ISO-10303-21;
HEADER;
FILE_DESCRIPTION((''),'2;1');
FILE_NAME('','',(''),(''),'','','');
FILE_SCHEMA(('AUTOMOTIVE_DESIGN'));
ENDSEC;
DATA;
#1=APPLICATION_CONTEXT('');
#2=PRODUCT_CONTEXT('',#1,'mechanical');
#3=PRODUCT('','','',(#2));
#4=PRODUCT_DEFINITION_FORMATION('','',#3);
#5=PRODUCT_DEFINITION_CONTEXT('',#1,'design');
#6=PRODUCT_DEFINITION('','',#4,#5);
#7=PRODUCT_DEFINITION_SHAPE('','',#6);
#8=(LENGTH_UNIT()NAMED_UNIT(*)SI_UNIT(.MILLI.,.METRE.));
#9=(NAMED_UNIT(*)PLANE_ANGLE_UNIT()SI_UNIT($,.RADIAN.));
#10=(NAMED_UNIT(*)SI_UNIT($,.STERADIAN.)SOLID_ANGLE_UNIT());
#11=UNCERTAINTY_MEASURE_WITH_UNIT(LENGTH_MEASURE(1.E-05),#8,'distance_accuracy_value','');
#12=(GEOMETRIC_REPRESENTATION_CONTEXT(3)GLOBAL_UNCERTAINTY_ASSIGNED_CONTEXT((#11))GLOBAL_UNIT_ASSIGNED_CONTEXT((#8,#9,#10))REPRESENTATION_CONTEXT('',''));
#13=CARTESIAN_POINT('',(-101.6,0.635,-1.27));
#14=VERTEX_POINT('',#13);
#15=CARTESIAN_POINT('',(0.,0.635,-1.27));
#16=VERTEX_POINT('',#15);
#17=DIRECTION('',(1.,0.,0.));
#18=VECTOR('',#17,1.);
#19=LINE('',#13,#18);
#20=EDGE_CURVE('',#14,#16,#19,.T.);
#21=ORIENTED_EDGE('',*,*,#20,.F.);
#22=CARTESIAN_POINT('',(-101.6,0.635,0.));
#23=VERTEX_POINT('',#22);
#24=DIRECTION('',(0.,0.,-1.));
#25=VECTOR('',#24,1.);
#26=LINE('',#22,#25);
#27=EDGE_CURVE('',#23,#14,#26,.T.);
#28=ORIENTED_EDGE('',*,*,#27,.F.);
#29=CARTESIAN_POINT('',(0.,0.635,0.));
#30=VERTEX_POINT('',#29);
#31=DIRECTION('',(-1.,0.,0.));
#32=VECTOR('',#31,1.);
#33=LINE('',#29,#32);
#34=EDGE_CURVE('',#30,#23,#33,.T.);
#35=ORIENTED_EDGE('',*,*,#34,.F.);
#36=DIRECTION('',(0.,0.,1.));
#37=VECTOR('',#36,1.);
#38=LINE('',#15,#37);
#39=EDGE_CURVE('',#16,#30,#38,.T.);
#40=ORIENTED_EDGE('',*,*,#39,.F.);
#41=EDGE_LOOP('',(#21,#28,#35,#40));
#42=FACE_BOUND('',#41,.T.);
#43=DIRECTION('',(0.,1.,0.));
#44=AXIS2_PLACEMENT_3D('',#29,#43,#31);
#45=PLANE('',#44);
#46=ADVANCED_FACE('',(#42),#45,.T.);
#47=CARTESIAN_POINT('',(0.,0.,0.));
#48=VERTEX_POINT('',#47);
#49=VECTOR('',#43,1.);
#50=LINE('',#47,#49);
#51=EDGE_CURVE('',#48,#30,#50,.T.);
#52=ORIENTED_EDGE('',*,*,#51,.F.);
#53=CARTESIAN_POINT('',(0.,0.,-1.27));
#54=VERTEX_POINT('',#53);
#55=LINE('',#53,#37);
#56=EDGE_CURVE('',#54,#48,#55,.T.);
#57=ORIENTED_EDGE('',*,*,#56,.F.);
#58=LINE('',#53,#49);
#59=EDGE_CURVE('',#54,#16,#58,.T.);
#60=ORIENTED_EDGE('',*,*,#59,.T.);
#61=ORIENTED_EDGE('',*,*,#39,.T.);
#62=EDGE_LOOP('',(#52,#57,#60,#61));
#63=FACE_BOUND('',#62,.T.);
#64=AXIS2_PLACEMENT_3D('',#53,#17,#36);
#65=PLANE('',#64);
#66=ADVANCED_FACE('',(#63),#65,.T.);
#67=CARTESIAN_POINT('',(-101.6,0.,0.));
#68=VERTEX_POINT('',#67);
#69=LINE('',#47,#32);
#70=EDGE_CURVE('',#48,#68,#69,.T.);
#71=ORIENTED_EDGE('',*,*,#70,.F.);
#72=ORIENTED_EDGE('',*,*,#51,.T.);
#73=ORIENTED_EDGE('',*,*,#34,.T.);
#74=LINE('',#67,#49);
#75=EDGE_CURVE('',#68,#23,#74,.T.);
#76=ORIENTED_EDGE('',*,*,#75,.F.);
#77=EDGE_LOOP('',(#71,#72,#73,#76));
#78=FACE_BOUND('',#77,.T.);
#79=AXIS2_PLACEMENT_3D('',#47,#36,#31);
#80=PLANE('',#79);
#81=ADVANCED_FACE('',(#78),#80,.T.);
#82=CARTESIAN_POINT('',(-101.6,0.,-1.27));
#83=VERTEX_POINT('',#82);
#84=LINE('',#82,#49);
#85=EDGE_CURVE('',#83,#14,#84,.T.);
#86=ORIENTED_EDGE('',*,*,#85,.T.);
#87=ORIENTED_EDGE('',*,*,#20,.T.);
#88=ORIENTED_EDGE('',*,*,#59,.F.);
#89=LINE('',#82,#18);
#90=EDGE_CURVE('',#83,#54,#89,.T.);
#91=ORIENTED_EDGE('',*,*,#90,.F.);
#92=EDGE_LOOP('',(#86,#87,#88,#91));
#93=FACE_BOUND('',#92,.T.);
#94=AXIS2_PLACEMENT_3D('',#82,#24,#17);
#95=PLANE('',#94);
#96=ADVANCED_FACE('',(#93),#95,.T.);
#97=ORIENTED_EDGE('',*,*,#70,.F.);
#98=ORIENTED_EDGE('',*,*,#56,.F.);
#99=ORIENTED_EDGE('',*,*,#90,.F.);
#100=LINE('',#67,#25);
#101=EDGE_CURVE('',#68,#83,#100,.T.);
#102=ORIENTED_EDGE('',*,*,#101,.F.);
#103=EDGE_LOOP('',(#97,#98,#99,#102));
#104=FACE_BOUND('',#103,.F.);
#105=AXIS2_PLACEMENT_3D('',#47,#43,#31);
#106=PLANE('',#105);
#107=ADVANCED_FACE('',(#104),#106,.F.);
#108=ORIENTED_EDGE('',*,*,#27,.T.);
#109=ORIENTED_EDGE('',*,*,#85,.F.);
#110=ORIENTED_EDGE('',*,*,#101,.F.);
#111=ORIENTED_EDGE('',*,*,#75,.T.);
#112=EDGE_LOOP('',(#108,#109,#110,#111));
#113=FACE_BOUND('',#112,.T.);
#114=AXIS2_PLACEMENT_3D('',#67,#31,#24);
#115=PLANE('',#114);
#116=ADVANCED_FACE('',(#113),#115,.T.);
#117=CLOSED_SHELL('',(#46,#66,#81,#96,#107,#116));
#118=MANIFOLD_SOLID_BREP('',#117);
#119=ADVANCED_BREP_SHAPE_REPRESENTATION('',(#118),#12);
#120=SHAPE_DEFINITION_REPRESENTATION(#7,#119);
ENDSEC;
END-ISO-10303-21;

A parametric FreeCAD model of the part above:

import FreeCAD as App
import Part
import Sketcher
from FreeCAD import Vector
Q = App.Units.Quantity

doc = App.newDocument("Part")
body = doc.addObject("PartDesign::Body", "Body")

# Sketch on XZ plane
sketch1 = doc.addObject("Sketcher::SketchObject", "Sketch")
body.addObject(sketch1)
sketch1.AttachmentSupport = (doc.XZ_Plane, [""])
sketch1.MapMode = "FlatFace"
sketch1.addGeometry(Part.LineSegment(Vector(-101.6, 0, 0), Vector(0, 0, 0)), False)
sketch1.addGeometry(Part.LineSegment(Vector(0, 0, 0), Vector(0, -1.3, 0)), False)
sketch1.addGeometry(Part.LineSegment(Vector(0, -1.3, 0), Vector(-101.6, -1.3, 0)), False)
sketch1.addGeometry(Part.LineSegment(Vector(-101.6, -1.3, 0), Vector(-101.6, 0, 0)), False)
sketch1.addConstraint(Sketcher.Constraint("Coincident", 0, 2, 1, 1))
sketch1.addConstraint(Sketcher.Constraint("Coincident", 1, 2, 2, 1))
sketch1.addConstraint(Sketcher.Constraint("Coincident", 2, 2, 3, 1))
sketch1.addConstraint(Sketcher.Constraint("Coincident", 3, 2, 0, 1))
sketch1.addConstraint(Sketcher.Constraint("Horizontal", 0))
sketch1.addConstraint(Sketcher.Constraint("Vertical", 1))
sketch1.addConstraint(Sketcher.Constraint("Horizontal", 2))
sketch1.addConstraint(Sketcher.Constraint("Vertical", 3))
sketch1.addConstraint(Sketcher.Constraint("Coincident", 0, 2, -1, 1))
sketch1.addConstraint(Sketcher.Constraint("DistanceX", 0, 1, 0, 2, Q("4 in")))
sketch1.addConstraint(Sketcher.Constraint("DistanceY", 1, 2, 1, 1, Q("0.05 in")))
pad1 = doc.addObject("PartDesign::Pad", "Pad")
body.addObject(pad1)
pad1.Profile = sketch1
pad1.Length = Q("0.025 in")
pad1.Reversed = True

doc.recompute()
